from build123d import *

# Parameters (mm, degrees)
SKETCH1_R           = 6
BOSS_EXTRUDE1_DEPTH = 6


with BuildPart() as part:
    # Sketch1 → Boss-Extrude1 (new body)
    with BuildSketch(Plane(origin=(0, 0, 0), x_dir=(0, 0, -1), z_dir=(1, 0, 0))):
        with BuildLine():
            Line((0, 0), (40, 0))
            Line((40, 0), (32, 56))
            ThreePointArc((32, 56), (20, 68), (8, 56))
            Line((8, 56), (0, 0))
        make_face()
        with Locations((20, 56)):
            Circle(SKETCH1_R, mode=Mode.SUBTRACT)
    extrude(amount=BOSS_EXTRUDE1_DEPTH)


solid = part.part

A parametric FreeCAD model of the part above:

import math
import FreeCAD as App
import Part
import Sketcher
Q = App.Units.Quantity

doc = App.newDocument("Part")
body = doc.addObject("PartDesign::Body", "Body")

# Sketch on YZ plane
sketch1 = body.newObject("Sketcher::SketchObject", "Sketch")
sketch1.AttachmentSupport = (doc.getObject("YZ_Plane"), [""])
sketch1.MapMode = "FlatFace"
sketch1.addGeometry([
    Part.LineSegment(App.Vector(0, 0, 0), App.Vector(0, -40, 0)),  # 0
    Part.LineSegment(App.Vector(0, -40, 0), App.Vector(56, -32, 0)),  # 1
    Part.ArcOfCircle(Part.Circle(App.Vector(56, -20, 0), App.Vector(0, 0, 1), 12), math.radians(-90), math.radians(90)),  # 2
    Part.LineSegment(App.Vector(56, -8, 0), App.Vector(0, 0, 0)),  # 3
    Part.Circle(App.Vector(56, -20, 0), App.Vector(0, 0, 1), 6),  # 4
], False)
sketch1.addConstraint([
    Sketcher.Constraint("Coincident", 0, 2, 1, 1),
    Sketcher.Constraint("Coincident", 1, 2, 2, 1),
    Sketcher.Constraint("Coincident", 2, 2, 3, 1),
    Sketcher.Constraint("Coincident", 3, 2, 0, 1),
    Sketcher.Constraint("Vertical", 0),
    Sketcher.Constraint("Coincident", 3, 2, -1, 1),
    Sketcher.Constraint("Coincident", 4, 3, 2, 3),
    Sketcher.Constraint("Vertical", 4, 3, 1, 2),
    Sketcher.Constraint("Vertical", 1, 2, 2, 2),
    Sketcher.Constraint("Equal", 1, 3),
    Sketcher.Constraint("Diameter", 4, Q("12 mm")),
    Sketcher.Constraint("Radius", 2, Q("12 mm")),
    Sketcher.Constraint("DistanceY", 0, 2, 0, 1, Q("40 mm")),
    Sketcher.Constraint("DistanceX", -1, 1, 2, 3, Q("56 mm")),
])
pad1 = body.newObject("PartDesign::Pad", "Pad")
pad1.Profile = sketch1
pad1.Length = 6

doc.recompute()
